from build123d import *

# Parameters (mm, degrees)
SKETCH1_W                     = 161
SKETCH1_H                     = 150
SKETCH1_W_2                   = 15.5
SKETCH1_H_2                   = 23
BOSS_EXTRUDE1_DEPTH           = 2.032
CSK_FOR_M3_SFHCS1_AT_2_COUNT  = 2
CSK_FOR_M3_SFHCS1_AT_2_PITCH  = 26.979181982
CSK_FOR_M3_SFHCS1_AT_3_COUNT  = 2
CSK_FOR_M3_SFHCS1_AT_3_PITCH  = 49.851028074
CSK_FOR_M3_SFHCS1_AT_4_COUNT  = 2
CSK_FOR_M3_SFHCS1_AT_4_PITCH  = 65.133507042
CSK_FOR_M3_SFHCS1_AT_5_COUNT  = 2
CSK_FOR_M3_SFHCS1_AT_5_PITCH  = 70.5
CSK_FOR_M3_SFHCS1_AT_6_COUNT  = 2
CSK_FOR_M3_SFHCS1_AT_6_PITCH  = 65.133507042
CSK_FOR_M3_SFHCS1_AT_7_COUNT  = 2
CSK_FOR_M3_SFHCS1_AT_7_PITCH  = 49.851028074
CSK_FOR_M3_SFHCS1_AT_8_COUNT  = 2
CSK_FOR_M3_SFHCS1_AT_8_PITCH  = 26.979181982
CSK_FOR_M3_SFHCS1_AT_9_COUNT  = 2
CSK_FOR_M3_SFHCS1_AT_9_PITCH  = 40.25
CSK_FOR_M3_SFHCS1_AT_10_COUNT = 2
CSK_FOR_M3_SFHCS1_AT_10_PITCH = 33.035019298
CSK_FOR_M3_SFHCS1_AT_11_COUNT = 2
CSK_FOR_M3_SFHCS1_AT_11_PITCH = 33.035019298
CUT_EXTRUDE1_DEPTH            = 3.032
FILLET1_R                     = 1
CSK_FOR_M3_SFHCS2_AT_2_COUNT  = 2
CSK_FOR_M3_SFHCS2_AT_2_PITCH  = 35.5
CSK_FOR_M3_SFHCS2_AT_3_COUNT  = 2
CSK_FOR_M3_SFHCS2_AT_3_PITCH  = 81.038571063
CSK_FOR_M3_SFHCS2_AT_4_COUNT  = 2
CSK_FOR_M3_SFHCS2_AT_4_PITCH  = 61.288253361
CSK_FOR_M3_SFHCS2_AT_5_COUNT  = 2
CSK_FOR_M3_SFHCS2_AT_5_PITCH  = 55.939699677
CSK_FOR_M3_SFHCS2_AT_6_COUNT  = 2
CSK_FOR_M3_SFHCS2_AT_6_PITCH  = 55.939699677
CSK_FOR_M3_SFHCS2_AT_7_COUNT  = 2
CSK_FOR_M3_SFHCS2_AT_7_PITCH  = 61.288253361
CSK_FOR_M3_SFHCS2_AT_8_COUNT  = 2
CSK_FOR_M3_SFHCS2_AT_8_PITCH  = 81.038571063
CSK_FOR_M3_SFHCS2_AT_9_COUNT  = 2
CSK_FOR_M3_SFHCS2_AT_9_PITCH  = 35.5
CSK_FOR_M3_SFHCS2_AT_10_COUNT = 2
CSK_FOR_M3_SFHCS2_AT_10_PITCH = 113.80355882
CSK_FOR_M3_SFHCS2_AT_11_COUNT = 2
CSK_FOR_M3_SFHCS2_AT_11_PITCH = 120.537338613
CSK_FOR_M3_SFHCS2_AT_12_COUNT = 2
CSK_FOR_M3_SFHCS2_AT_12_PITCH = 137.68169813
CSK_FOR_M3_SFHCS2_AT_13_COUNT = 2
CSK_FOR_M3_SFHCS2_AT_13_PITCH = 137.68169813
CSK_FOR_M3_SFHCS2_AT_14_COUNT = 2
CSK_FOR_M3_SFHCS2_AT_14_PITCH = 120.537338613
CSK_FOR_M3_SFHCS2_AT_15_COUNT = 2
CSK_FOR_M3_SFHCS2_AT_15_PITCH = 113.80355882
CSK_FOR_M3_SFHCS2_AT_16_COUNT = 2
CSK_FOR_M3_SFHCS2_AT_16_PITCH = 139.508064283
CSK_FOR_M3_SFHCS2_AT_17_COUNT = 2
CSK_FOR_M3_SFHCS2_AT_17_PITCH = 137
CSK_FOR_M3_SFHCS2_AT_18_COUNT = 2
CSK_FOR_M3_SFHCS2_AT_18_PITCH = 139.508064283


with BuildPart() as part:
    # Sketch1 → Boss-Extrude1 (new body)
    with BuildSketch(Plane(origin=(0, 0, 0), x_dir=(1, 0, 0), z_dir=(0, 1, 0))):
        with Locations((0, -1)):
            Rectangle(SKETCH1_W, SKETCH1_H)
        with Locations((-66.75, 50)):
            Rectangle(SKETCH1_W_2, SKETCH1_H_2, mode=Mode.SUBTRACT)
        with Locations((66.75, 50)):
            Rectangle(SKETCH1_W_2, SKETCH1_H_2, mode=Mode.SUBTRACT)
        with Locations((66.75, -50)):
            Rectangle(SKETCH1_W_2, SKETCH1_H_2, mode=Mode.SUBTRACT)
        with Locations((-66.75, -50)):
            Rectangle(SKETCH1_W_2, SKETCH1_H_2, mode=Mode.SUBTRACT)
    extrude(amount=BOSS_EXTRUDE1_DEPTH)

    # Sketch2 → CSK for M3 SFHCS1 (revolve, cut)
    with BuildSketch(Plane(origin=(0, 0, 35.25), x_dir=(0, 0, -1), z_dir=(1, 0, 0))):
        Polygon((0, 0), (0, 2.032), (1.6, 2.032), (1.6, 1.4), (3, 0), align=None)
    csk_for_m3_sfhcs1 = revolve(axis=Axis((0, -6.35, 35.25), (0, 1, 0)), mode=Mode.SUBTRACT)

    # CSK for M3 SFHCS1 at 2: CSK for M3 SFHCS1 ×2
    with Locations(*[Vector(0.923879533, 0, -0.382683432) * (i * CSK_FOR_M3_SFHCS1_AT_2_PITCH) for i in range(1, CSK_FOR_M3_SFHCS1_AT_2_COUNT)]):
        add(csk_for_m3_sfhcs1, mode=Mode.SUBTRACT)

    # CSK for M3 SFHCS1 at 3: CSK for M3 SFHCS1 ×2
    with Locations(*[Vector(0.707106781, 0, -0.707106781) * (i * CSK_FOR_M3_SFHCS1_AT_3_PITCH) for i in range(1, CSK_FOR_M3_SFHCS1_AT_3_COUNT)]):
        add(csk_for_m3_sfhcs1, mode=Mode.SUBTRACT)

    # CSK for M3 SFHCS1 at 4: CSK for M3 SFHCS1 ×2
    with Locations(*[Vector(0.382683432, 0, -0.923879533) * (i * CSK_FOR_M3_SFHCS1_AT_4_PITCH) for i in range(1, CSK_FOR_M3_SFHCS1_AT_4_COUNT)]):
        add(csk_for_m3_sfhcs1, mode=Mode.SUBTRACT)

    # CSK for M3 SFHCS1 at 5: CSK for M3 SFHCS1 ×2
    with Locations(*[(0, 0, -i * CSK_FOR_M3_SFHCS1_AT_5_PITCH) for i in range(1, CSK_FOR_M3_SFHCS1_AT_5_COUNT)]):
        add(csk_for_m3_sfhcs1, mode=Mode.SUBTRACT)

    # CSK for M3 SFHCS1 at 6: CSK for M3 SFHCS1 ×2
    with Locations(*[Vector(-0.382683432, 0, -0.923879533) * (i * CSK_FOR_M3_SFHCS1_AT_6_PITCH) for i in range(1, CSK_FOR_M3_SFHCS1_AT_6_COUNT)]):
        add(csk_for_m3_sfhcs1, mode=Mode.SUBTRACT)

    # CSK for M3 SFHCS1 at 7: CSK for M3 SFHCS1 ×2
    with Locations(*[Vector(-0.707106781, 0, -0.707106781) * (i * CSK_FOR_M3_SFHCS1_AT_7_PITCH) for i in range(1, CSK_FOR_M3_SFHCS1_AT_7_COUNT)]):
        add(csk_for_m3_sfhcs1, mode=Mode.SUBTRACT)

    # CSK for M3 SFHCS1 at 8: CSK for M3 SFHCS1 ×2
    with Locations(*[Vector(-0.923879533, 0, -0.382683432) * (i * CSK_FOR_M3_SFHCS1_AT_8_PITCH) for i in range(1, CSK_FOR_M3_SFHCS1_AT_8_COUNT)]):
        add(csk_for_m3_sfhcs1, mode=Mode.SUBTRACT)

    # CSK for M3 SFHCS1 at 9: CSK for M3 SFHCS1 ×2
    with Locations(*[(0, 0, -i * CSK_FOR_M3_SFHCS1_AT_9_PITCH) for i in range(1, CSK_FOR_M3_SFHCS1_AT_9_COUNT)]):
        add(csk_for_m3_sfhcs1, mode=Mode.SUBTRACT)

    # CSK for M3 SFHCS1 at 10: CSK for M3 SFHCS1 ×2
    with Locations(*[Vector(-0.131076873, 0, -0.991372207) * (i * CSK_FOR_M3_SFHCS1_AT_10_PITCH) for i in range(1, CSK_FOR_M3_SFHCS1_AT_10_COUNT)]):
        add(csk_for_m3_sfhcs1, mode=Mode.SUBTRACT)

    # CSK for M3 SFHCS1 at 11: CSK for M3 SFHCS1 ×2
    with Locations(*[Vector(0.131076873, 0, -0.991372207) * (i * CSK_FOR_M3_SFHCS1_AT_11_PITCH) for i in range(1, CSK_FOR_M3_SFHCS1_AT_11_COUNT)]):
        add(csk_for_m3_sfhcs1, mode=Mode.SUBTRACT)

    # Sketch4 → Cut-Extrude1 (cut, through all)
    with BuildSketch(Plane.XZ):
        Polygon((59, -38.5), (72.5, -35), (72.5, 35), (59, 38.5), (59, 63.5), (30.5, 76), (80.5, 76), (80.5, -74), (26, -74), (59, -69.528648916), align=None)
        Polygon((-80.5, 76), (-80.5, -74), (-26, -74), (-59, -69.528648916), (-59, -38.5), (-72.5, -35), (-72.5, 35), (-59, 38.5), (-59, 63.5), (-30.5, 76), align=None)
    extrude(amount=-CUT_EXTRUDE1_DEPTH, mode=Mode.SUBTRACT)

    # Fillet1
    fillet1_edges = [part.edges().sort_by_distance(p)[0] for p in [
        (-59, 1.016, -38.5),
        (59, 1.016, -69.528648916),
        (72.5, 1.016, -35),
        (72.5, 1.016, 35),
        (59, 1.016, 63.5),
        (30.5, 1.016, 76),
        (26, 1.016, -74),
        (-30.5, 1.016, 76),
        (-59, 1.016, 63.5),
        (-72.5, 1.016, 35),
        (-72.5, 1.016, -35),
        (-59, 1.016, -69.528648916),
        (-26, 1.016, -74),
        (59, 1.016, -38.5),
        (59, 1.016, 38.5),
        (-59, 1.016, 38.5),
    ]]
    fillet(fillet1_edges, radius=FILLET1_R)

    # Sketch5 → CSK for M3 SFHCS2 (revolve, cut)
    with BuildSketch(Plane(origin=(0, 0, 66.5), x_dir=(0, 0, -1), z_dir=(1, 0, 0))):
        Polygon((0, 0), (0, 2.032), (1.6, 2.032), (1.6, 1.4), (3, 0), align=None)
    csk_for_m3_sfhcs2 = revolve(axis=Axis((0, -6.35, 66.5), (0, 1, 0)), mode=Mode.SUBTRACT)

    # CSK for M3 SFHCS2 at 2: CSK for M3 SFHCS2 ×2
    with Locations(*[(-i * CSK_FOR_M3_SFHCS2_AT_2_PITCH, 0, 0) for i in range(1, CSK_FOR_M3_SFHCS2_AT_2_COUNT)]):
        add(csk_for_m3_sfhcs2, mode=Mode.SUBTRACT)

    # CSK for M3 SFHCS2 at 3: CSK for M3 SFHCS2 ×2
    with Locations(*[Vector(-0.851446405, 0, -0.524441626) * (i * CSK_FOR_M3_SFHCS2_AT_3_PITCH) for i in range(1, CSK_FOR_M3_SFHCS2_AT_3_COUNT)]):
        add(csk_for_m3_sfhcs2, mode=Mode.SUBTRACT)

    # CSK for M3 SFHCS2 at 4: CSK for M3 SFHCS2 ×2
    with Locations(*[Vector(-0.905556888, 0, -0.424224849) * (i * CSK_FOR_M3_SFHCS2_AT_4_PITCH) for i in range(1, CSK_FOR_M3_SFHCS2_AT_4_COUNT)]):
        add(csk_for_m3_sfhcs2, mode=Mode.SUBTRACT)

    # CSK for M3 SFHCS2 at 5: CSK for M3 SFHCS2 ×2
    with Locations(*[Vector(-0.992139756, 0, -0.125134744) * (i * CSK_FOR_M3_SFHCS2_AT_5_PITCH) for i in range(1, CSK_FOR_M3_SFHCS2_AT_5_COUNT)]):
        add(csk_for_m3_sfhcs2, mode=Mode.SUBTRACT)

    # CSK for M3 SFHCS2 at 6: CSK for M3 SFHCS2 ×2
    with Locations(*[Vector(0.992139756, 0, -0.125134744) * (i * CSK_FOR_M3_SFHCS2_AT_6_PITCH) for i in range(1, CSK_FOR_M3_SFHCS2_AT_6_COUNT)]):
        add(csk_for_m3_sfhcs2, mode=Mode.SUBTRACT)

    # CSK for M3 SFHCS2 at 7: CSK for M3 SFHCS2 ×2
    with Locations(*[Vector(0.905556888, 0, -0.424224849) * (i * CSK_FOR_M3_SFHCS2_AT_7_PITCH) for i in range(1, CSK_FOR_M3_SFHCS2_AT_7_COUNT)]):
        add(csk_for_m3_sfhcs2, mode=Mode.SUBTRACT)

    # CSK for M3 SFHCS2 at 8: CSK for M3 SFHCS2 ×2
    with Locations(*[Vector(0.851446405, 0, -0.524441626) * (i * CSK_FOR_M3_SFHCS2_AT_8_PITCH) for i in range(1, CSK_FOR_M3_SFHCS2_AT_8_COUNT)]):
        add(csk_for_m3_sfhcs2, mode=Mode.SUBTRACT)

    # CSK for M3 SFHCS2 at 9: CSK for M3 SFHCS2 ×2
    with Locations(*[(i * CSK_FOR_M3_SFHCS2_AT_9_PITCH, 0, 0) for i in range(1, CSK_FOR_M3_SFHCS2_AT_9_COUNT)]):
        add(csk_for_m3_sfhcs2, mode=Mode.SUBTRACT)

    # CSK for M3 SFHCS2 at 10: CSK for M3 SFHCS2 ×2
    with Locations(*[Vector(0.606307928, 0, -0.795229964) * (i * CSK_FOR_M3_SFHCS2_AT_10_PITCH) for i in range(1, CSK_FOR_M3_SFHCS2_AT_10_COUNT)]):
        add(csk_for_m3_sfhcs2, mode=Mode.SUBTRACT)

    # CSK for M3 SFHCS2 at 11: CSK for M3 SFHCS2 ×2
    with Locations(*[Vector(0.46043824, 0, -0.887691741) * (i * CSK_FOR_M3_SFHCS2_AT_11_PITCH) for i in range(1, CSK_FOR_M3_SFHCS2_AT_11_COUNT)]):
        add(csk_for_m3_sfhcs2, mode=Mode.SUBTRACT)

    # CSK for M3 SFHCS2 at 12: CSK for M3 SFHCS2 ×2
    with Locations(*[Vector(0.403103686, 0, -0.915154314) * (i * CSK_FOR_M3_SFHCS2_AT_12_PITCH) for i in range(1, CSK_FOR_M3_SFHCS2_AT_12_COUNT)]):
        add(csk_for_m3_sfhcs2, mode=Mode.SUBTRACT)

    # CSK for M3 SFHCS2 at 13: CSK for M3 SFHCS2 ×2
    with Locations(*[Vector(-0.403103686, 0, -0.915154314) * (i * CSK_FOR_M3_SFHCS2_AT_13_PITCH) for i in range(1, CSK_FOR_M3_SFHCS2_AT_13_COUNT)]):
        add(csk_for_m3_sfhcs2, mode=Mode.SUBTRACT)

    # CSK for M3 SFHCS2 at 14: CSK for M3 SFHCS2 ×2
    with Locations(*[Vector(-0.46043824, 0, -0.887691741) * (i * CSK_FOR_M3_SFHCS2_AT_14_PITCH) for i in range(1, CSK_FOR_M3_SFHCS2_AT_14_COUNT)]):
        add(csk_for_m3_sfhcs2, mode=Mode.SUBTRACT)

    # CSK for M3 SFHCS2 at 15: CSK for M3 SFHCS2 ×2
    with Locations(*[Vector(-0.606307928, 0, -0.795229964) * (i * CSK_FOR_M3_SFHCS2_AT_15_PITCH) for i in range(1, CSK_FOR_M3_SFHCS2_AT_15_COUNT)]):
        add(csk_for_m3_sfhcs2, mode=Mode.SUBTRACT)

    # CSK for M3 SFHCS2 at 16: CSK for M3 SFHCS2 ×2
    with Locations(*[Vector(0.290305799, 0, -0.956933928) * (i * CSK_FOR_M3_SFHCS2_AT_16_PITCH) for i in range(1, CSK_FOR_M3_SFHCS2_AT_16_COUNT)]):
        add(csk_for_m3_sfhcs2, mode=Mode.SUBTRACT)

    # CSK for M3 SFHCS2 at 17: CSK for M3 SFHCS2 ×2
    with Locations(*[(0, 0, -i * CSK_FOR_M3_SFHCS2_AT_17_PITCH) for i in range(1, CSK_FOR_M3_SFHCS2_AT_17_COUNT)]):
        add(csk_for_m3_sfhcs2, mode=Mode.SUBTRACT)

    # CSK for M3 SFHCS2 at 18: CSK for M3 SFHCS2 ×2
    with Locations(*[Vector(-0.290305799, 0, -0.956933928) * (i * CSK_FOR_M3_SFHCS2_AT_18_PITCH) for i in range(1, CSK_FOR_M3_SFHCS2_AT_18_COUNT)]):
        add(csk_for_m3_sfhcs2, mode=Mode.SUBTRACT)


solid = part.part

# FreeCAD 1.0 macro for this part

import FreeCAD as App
import Part
import Sketcher
from FreeCAD import Vector
Q = App.Units.Quantity


def edges_at(feature, points):
    """Names of the edges that pass closest to the given points."""
    edges = feature.Shape.Edges
    near = lambda p: min(range(len(edges)), key=lambda i: edges[i].distToShape(Part.Vertex(*p))[0])
    return sorted({f"Edge{near(p) + 1}" for p in points})

doc = App.newDocument("Part")
body = doc.addObject("PartDesign::Body", "Body")

# Sketch on XZ plane
sketch1 = body.newObject("Sketcher::SketchObject", "Sketch")
sketch1.AttachmentSupport = (doc.getObject("XZ_Plane"), [""])
sketch1.MapMode = "FlatFace"
sketch1.addGeometry([
    Part.LineSegment(Vector(-80, -74, 0), Vector(-80, 76, 0)),  # 0
    Part.LineSegment(Vector(-80, 76, 0), Vector(80, 76, 0)),  # 1
    Part.LineSegment(Vector(80, 76, 0), Vector(80, -74, 0)),  # 2
    Part.LineSegment(Vector(80, -74, 0), Vector(-80, -74, 0)),  # 3
    Part.LineSegment(Vector(-59, 62, 0), Vector(-74, 62, 0)),  # 4
    Part.LineSegment(Vector(-74, 62, 0), Vector(-74, 38, 0)),  # 5
    Part.LineSegment(Vector(-74, 38, 0), Vector(-59, 38, 0)),  # 6
    Part.LineSegment(Vector(-59, 38, 0), Vector(-59, 62, 0)),  # 7
    Part.LineSegment(Vector(74, 62, 0), Vector(59, 62, 0)),  # 8
    Part.LineSegment(Vector(59, 62, 0), Vector(59, 38, 0)),  # 9
    Part.LineSegment(Vector(59, 38, 0), Vector(74, 38, 0)),  # 10
    Part.LineSegment(Vector(74, 38, 0), Vector(74, 62, 0)),  # 11
    Part.LineSegment(Vector(-59, -38, 0), Vector(-74, -38, 0)),  # 12
    Part.LineSegment(Vector(-74, -38, 0), Vector(-74, -62, 0)),  # 13
    Part.LineSegment(Vector(-74, -62, 0), Vector(-59, -62, 0)),  # 14
    Part.LineSegment(Vector(-59, -62, 0), Vector(-59, -38, 0)),  # 15
    Part.LineSegment(Vector(74, -38, 0), Vector(59, -38, 0)),  # 16
    Part.LineSegment(Vector(59, -38, 0), Vector(59, -62, 0)),  # 17
    Part.LineSegment(Vector(59, -62, 0), Vector(74, -62, 0)),  # 18
    Part.LineSegment(Vector(74, -62, 0), Vector(74, -38, 0)),  # 19
], False)
sketch1.addConstraint([
    Sketcher.Constraint("Coincident", 0, 2, 1, 1),
    Sketcher.Constraint("Coincident", 1, 2, 2, 1),
    Sketcher.Constraint("Coincident", 2, 2, 3, 1),
    Sketcher.Constraint("Coincident", 3, 2, 0, 1),
    Sketcher.Constraint("Coincident", 4, 2, 5, 1),
    Sketcher.Constraint("Coincident", 5, 2, 6, 1),
    Sketcher.Constraint("Coincident", 6, 2, 7, 1),
    Sketcher.Constraint("Coincident", 7, 2, 4, 1),
    Sketcher.Constraint("Coincident", 8, 2, 9, 1),
    Sketcher.Constraint("Coincident", 9, 2, 10, 1),
    Sketcher.Constraint("Coincident", 10, 2, 11, 1),
    Sketcher.Constraint("Coincident", 11, 2, 8, 1),
    Sketcher.Constraint("Coincident", 12, 2, 13, 1),
    Sketcher.Constraint("Coincident", 13, 2, 14, 1),
    Sketcher.Constraint("Coincident", 14, 2, 15, 1),
    Sketcher.Constraint("Coincident", 15, 2, 12, 1),
    Sketcher.Constraint("Coincident", 16, 2, 17, 1),
    Sketcher.Constraint("Coincident", 17, 2, 18, 1),
    Sketcher.Constraint("Coincident", 18, 2, 19, 1),
    Sketcher.Constraint("Coincident", 19, 2, 16, 1),
    Sketcher.Constraint("Vertical", 0),
    Sketcher.Constraint("Horizontal", 1),
    Sketcher.Constraint("Vertical", 2),
    Sketcher.Constraint("Horizontal", 3),
    Sketcher.Constraint("Horizontal", 4),
    Sketcher.Constraint("Vertical", 5),
    Sketcher.Constraint("Horizontal", 6),
    Sketcher.Constraint("Vertical", 7),
    Sketcher.Constraint("Horizontal", 8),
    Sketcher.Constraint("Vertical", 9),
    Sketcher.Constraint("Horizontal", 10),
    Sketcher.Constraint("Vertical", 11),
    Sketcher.Constraint("Horizontal", 12),
    Sketcher.Constraint("Vertical", 13),
    Sketcher.Constraint("Horizontal", 14),
    Sketcher.Constraint("Vertical", 15),
    Sketcher.Constraint("Horizontal", 16),
    Sketcher.Constraint("Vertical", 17),
    Sketcher.Constraint("Horizontal", 18),
    Sketcher.Constraint("Vertical", 19),
    Sketcher.Constraint("Symmetric", 10, 2, 12, 2, -1, 1),
    Sketcher.Constraint("Symmetric", 8, 2, 14, 2, -1, 1),
    Sketcher.Constraint("Symmetric", 6, 2, 16, 2, -1, 1),
    Sketcher.Constraint("Symmetric", 4, 2, 18, 2, -1, 1),
    Sketcher.Constraint("Symmetric", 7, 2, 8, 2, -2),
    Sketcher.Constraint("Symmetric", 5, 2, 10, 2, -2),
    Sketcher.Constraint("DistanceX", 1, 1, 1, 2, Q("161 mm")),
    Sketcher.Constraint("DistanceY", 0, 1, 0, 2, Q("150 mm")),
    Sketcher.Constraint("DistanceY", 5, 2, 5, 1, Q("23 mm")),
    Sketcher.Constraint("DistanceX", 4, 2, 4, 1, Q("15.5 mm")),
    Sketcher.Constraint("DistanceY", -1, 1, 0, 2, Q("76 mm")),
    Sketcher.Constraint("DistanceX", 6, 2, -1, 1, Q("59 mm")),
    Sketcher.Constraint("DistanceX", 0, 2, 4, 2, Q("6 mm")),
    Sketcher.Constraint("DistanceY", 12, 2, 5, 2, Q("77 mm")),
])
pad1 = body.newObject("PartDesign::Pad", "Pad")
pad1.Profile = sketch1
pad1.Length = 2.032
pad1.Reversed = True

# Sketch on YZ plane
sketch2 = body.newObject("Sketcher::SketchObject", "Sketch001")
sketch2.AttachmentSupport = (doc.getObject("YZ_Plane"), [""])
sketch2.MapMode = "FlatFace"
sketch2.addGeometry([
    Part.LineSegment(Vector(2, 35.2, 0), Vector(0, 35.2, 0)),  # 0
    Part.LineSegment(Vector(0, 35.2, 0), Vector(0, 32.2, 0)),  # 1
    Part.LineSegment(Vector(0, 32.2, 0), Vector(1.4, 33.6, 0)),  # 2
    Part.LineSegment(Vector(1.4, 33.6, 0), Vector(2, 33.6, 0)),  # 3
    Part.LineSegment(Vector(2, 33.6, 0), Vector(2, 35.2, 0)),  # 4
], False)
sketch2.addGeometry(Part.LineSegment(Vector(0, 35.2, 0), Vector(2, 35.2, 0)), True)  # axis
sketch2.addConstraint([
    Sketcher.Constraint("Coincident", 0, 2, 1, 1),
    Sketcher.Constraint("Coincident", 1, 2, 2, 1),
    Sketcher.Constraint("Coincident", 2, 2, 3, 1),
    Sketcher.Constraint("Coincident", 3, 2, 4, 1),
    Sketcher.Constraint("Coincident", 4, 2, 0, 1),
    Sketcher.Constraint("Horizontal", 0),
    Sketcher.Constraint("Vertical", 1),
    Sketcher.Constraint("Horizontal", 3),
    Sketcher.Constraint("Vertical", 4),
    Sketcher.Constraint("Horizontal", 5),
    Sketcher.Constraint("Coincident", 5, 1, 0, 2),
    Sketcher.Constraint("PointOnObject", 0, 2, -2),
    Sketcher.Constraint("Vertical", 3, 2, 5, 2),
    Sketcher.Constraint("DistanceY", 1, 2, 1, 1, Q("3 mm")),
    Sketcher.Constraint("Angle", 2, Q("45 deg")),
    Sketcher.Constraint("DistanceY", 4, 1, 4, 2, Q("1.6 mm")),
    Sketcher.Constraint("DistanceX", 0, 2, 0, 1, Q("2.032 mm")),
    Sketcher.Constraint("DistanceY", -1, 1, 0, 2, Q("35.25 mm")),
])
groove = body.newObject("PartDesign::Groove", "Groove")
groove.Profile = sketch2
groove.ReferenceAxis = (sketch2, ["Axis0"])
groove.Angle = 360
doc.recompute()

datumline = body.newObject("PartDesign::Line", "DatumLine")
datumline.Placement = App.Placement(Vector(0, 0, 0), App.Rotation(Vector(0, 0, 1), Vector(0.923879533, 0, -0.382683432)))
linearpattern = body.newObject("PartDesign::LinearPattern", "LinearPattern")
linearpattern.Originals = [groove]
linearpattern.Direction = (datumline, [""])
linearpattern.Mode = "offset"
linearpattern.Offset = 26.979182
linearpattern.Occurrences = 2
body.Tip = linearpattern
doc.recompute()

datumline2 = body.newObject("PartDesign::Line", "DatumLine001")
datumline2.Placement = App.Placement(Vector(0, 0, 0), App.Rotation(Vector(0, 0, 1), Vector(0.707106781, 0, -0.707106781)))
linearpattern2 = body.newObject("PartDesign::LinearPattern", "LinearPattern001")
linearpattern2.Originals = [groove]
linearpattern2.Direction = (datumline2, [""])
linearpattern2.Mode = "offset"
linearpattern2.Offset = 49.851028
linearpattern2.Occurrences = 2
body.Tip = linearpattern2
doc.recompute()

datumline3 = body.newObject("PartDesign::Line", "DatumLine002")
datumline3.Placement = App.Placement(Vector(0, 0, 0), App.Rotation(Vector(0, 0, 1), Vector(0.382683432, 0, -0.923879533)))
linearpattern3 = body.newObject("PartDesign::LinearPattern", "LinearPattern002")
linearpattern3.Originals = [groove]
linearpattern3.Direction = (datumline3, [""])
linearpattern3.Mode = "offset"
linearpattern3.Offset = 65.133507
linearpattern3.Occurrences = 2
body.Tip = linearpattern3
doc.recompute()

linearpattern4 = body.newObject("PartDesign::LinearPattern", "LinearPattern003")
linearpattern4.Originals = [groove]
linearpattern4.Direction = (doc.getObject("Z_Axis"), [""])
linearpattern4.Mode = "offset"
linearpattern4.Offset = 70.5
linearpattern4.Occurrences = 2
linearpattern4.Reversed = True
body.Tip = linearpattern4
doc.recompute()

datumline4 = body.newObject("PartDesign::Line", "DatumLine003")
datumline4.Placement = App.Placement(Vector(0, 0, 0), App.Rotation(Vector(0, 0, 1), Vector(-0.382683432, 0, -0.923879533)))
linearpattern5 = body.newObject("PartDesign::LinearPattern", "LinearPattern004")
linearpattern5.Originals = [groove]
linearpattern5.Direction = (datumline4, [""])
linearpattern5.Mode = "offset"
linearpattern5.Offset = 65.133507
linearpattern5.Occurrences = 2
body.Tip = linearpattern5
doc.recompute()

datumline5 = body.newObject("PartDesign::Line", "DatumLine004")
datumline5.Placement = App.Placement(Vector(0, 0, 0), App.Rotation(Vector(0, 0, 1), Vector(-0.707106781, 0, -0.707106781)))
linearpattern6 = body.newObject("PartDesign::LinearPattern", "LinearPattern005")
linearpattern6.Originals = [groove]
linearpattern6.Direction = (datumline5, [""])
linearpattern6.Mode = "offset"
linearpattern6.Offset = 49.851028
linearpattern6.Occurrences = 2
body.Tip = linearpattern6
doc.recompute()

datumline6 = body.newObject("PartDesign::Line", "DatumLine005")
datumline6.Placement = App.Placement(Vector(0, 0, 0), App.Rotation(Vector(0, 0, 1), Vector(-0.923879533, 0, -0.382683432)))
linearpattern7 = body.newObject("PartDesign::LinearPattern", "LinearPattern006")
linearpattern7.Originals = [groove]
linearpattern7.Direction = (datumline6, [""])
linearpattern7.Mode = "offset"
linearpattern7.Offset = 26.979182
linearpattern7.Occurrences = 2
body.Tip = linearpattern7
doc.recompute()

linearpattern8 = body.newObject("PartDesign::LinearPattern", "LinearPattern007")
linearpattern8.Originals = [groove]
linearpattern8.Direction = (doc.getObject("Z_Axis"), [""])
linearpattern8.Mode = "offset"
linearpattern8.Offset = 40.25
linearpattern8.Occurrences = 2
linearpattern8.Reversed = True
body.Tip = linearpattern8
doc.recompute()

datumline7 = body.newObject("PartDesign::Line", "DatumLine006")
datumline7.Placement = App.Placement(Vector(0, 0, 0), App.Rotation(Vector(0, 0, 1), Vector(-0.131076873, 0, -0.991372207)))
linearpattern9 = body.newObject("PartDesign::LinearPattern", "LinearPattern008")
linearpattern9.Originals = [groove]
linearpattern9.Direction = (datumline7, [""])
linearpattern9.Mode = "offset"
linearpattern9.Offset = 33.035019
linearpattern9.Occurrences = 2
body.Tip = linearpattern9
doc.recompute()

datumline8 = body.newObject("PartDesign::Line", "DatumLine007")
datumline8.Placement = App.Placement(Vector(0, 0, 0), App.Rotation(Vector(0, 0, 1), Vector(0.131076873, 0, -0.991372207)))
linearpattern10 = body.newObject("PartDesign::LinearPattern", "LinearPattern009")
linearpattern10.Originals = [groove]
linearpattern10.Direction = (datumline8, [""])
linearpattern10.Mode = "offset"
linearpattern10.Offset = 33.035019
linearpattern10.Occurrences = 2
body.Tip = linearpattern10

# Sketch on XZ plane
sketch3 = body.newObject("Sketcher::SketchObject", "Sketch002")
sketch3.AttachmentSupport = (doc.getObject("XZ_Plane"), [""])
sketch3.MapMode = "FlatFace"
sketch3.addGeometry([
    Part.LineSegment(Vector(72, -35, 0), Vector(59, -38, 0)),  # 0
    Part.LineSegment(Vector(59, -38, 0), Vector(59, -70, 0)),  # 1
    Part.LineSegment(Vector(59, -70, 0), Vector(26, -74, 0)),  # 2
    Part.LineSegment(Vector(26, -74, 0), Vector(80, -74, 0)),  # 3
    Part.LineSegment(Vector(80, -74, 0), Vector(80, 76, 0)),  # 4
    Part.LineSegment(Vector(80, 76, 0), Vector(30, 76, 0)),  # 5
    Part.LineSegment(Vector(30, 76, 0), Vector(59, 64, 0)),  # 6
    Part.LineSegment(Vector(59, 64, 0), Vector(59, 38, 0)),  # 7
    Part.LineSegment(Vector(59, 38, 0), Vector(72, 35, 0)),  # 8
    Part.LineSegment(Vector(72, 35, 0), Vector(72, -35, 0)),  # 9
    Part.LineSegment(Vector(-80, 76, 0), Vector(-80, -74, 0)),  # 10
    Part.LineSegment(Vector(-80, -74, 0), Vector(-26, -74, 0)),  # 11
    Part.LineSegment(Vector(-26, -74, 0), Vector(-59, -70, 0)),  # 12
    Part.LineSegment(Vector(-59, -70, 0), Vector(-59, -38, 0)),  # 13
    Part.LineSegment(Vector(-59, -38, 0), Vector(-72, -35, 0)),  # 14
    Part.LineSegment(Vector(-72, -35, 0), Vector(-72, 35, 0)),  # 15
    Part.LineSegment(Vector(-72, 35, 0), Vector(-59, 38, 0)),  # 16
    Part.LineSegment(Vector(-59, 38, 0), Vector(-59, 64, 0)),  # 17
    Part.LineSegment(Vector(-59, 64, 0), Vector(-30, 76, 0)),  # 18
    Part.LineSegment(Vector(-30, 76, 0), Vector(-80, 76, 0)),  # 19
], False)
sketch3.addConstraint([
    Sketcher.Constraint("Coincident", 0, 2, 1, 1),
    Sketcher.Constraint("Coincident", 1, 2, 2, 1),
    Sketcher.Constraint("Coincident", 2, 2, 3, 1),
    Sketcher.Constraint("Coincident", 3, 2, 4, 1),
    Sketcher.Constraint("Coincident", 4, 2, 5, 1),
    Sketcher.Constraint("Coincident", 5, 2, 6, 1),
    Sketcher.Constraint("Coincident", 6, 2, 7, 1),
    Sketcher.Constraint("Coincident", 7, 2, 8, 1),
    Sketcher.Constraint("Coincident", 8, 2, 9, 1),
    Sketcher.Constraint("Coincident", 9, 2, 0, 1),
    Sketcher.Constraint("Coincident", 10, 2, 11, 1),
    Sketcher.Constraint("Coincident", 11, 2, 12, 1),
    Sketcher.Constraint("Coincident", 12, 2, 13, 1),
    Sketcher.Constraint("Coincident", 13, 2, 14, 1),
    Sketcher.Constraint("Coincident", 14, 2, 15, 1),
    Sketcher.Constraint("Coincident", 15, 2, 16, 1),
    Sketcher.Constraint("Coincident", 16, 2, 17, 1),
    Sketcher.Constraint("Coincident", 17, 2, 18, 1),
    Sketcher.Constraint("Coincident", 18, 2, 19, 1),
    Sketcher.Constraint("Coincident", 19, 2, 10, 1),
    Sketcher.Constraint("Vertical", 1),
    Sketcher.Constraint("Horizontal", 3),
    Sketcher.Constraint("Vertical", 4),
    Sketcher.Constraint("Horizontal", 5),
    Sketcher.Constraint("Vertical", 7),
    Sketcher.Constraint("Vertical", 9),
    Sketcher.Constraint("Vertical", 10),
    Sketcher.Constraint("Horizontal", 11),
    Sketcher.Constraint("Vertical", 13),
    Sketcher.Constraint("Vertical", 15),
    Sketcher.Constraint("Vertical", 17),
    Sketcher.Constraint("Horizontal", 19),
    Sketcher.Constraint("Symmetric", 7, 2, 13, 2, -1, 1),
    Sketcher.Constraint("Symmetric", 8, 2, 14, 2, -1, 1),
    Sketcher.Constraint("Symmetric", 0, 2, 16, 2, -1, 1),
    Sketcher.Constraint("Symmetric", 3, 2, 10, 2, -2),
    Sketcher.Constraint("Symmetric", 1, 2, 12, 2, -2),
    Sketcher.Constraint("Symmetric", 5, 2, 18, 2, -2),
    Sketcher.Constraint("Parallel", 0, 16),
    Sketcher.Constraint("Horizontal", 0, 2, 13, 2),
    Sketcher.Constraint("Horizontal", 9, 2, 14, 2),
    Sketcher.Constraint("Horizontal", 6, 2, 17, 2),
    Sketcher.Constraint("Equal", 3, 11),
    Sketcher.Constraint("DistanceX", 5, 2, 5, 1, Q("50 mm")),
    Sketcher.Constraint("DistanceY", 4, 1, 4, 2, Q("150 mm")),
    Sketcher.Constraint("DistanceY", 7, 2, 7, 1, Q("25 mm")),
    Sketcher.Constraint("DistanceY", 9, 2, 9, 1, Q("70 mm")),
    Sketcher.Constraint("DistanceX", 3, 1, 3, 2, Q("54.5 mm")),
    Sketcher.Constraint("DistanceX", -1, 1, 0, 2, Q("59 mm")),
    Sketcher.Constraint("DistanceX", -1, 1, 2, 2, Q("26 mm")),
    Sketcher.Constraint("DistanceY", 2, 2, -1, 1, Q("74 mm")),
    Sketcher.Constraint("DistanceY", 0, 2, 6, 2, Q("102 mm")),
    Sketcher.Constraint("DistanceX", 8, 2, 4, 2, Q("8 mm")),
    Sketcher.Constraint("DistanceY", 1, 2, 1, 1, Q("31.028649 mm")),
])
pocket1 = body.newObject("PartDesign::Pocket", "Pocket")
pocket1.Profile = sketch3
pocket1.Type = "ThroughAll"
doc.recompute()

fillet = body.newObject("PartDesign::Fillet", "Fillet")
fillet.Base = (pocket1, edges_at(pocket1, [
    (-59, 1.016, -38.5),
    (59, 1.016, -69.529),
    (72.5, 1.016, -35),
    (72.5, 1.016, 35),
    (59, 1.016, 63.5),
    (30.5, 1.016, 76),
    (26, 1.016, -74),
    (-30.5, 1.016, 76),
    (-59, 1.016, 63.5),
    (-72.5, 1.016, 35),
    (-72.5, 1.016, -35),
    (-59, 1.016, -69.529),
    (-26, 1.016, -74),
    (59, 1.016, -38.5),
    (59, 1.016, 38.5),
    (-59, 1.016, 38.5),
]))
fillet.Radius = 1

# Sketch on YZ plane
sketch4 = body.newObject("Sketcher::SketchObject", "Sketch003")
sketch4.AttachmentSupport = (doc.getObject("YZ_Plane"), [""])
sketch4.MapMode = "FlatFace"
sketch4.addGeometry([
    Part.LineSegment(Vector(2, 66.5, 0), Vector(0, 66.5, 0)),  # 0
    Part.LineSegment(Vector(0, 66.5, 0), Vector(0, 63.5, 0)),  # 1
    Part.LineSegment(Vector(0, 63.5, 0), Vector(1.4, 64.9, 0)),  # 2
    Part.LineSegment(Vector(1.4, 64.9, 0), Vector(2, 64.9, 0)),  # 3
    Part.LineSegment(Vector(2, 64.9, 0), Vector(2, 66.5, 0)),  # 4
], False)
sketch4.addGeometry(Part.LineSegment(Vector(0, 66.5, 0), Vector(2, 66.5, 0)), True)  # axis
sketch4.addConstraint([
    Sketcher.Constraint("Coincident", 0, 2, 1, 1),
    Sketcher.Constraint("Coincident", 1, 2, 2, 1),
    Sketcher.Constraint("Coincident", 2, 2, 3, 1),
    Sketcher.Constraint("Coincident", 3, 2, 4, 1),
    Sketcher.Constraint("Coincident", 4, 2, 0, 1),
    Sketcher.Constraint("Horizontal", 0),
    Sketcher.Constraint("Vertical", 1),
    Sketcher.Constraint("Horizontal", 3),
    Sketcher.Constraint("Vertical", 4),
    Sketcher.Constraint("Horizontal", 5),
    Sketcher.Constraint("Coincident", 5, 1, 0, 2),
    Sketcher.Constraint("PointOnObject", 0, 2, -2),
    Sketcher.Constraint("Vertical", 3, 2, 5, 2),
    Sketcher.Constraint("DistanceY", 1, 2, 1, 1, Q("3 mm")),
    Sketcher.Constraint("Angle", 2, Q("45 deg")),
    Sketcher.Constraint("DistanceY", 4, 1, 4, 2, Q("1.6 mm")),
    Sketcher.Constraint("DistanceY", -1, 1, 0, 2, Q("66.5 mm")),
    Sketcher.Constraint("DistanceX", 0, 2, 0, 1, Q("2.032 mm")),
])
groove2 = body.newObject("PartDesign::Groove", "Groove001")
groove2.Profile = sketch4
groove2.ReferenceAxis = (sketch4, ["Axis0"])
groove2.Angle = 360
doc.recompute()

linearpattern11 = body.newObject("PartDesign::LinearPattern", "LinearPattern010")
linearpattern11.Originals = [groove2]
linearpattern11.Direction = (doc.getObject("X_Axis"), [""])
linearpattern11.Mode = "offset"
linearpattern11.Offset = 35.5
linearpattern11.Occurrences = 2
linearpattern11.Reversed = True
body.Tip = linearpattern11
doc.recompute()

datumline9 = body.newObject("PartDesign::Line", "DatumLine008")
datumline9.Placement = App.Placement(Vector(0, 0, 0), App.Rotation(Vector(0, 0, 1), Vector(-0.851446405, 0, -0.524441626)))
linearpattern12 = body.newObject("PartDesign::LinearPattern", "LinearPattern011")
linearpattern12.Originals = [groove2]
linearpattern12.Direction = (datumline9, [""])
linearpattern12.Mode = "offset"
linearpattern12.Offset = 81.038571
linearpattern12.Occurrences = 2
body.Tip = linearpattern12
doc.recompute()

datumline10 = body.newObject("PartDesign::Line", "DatumLine009")
datumline10.Placement = App.Placement(Vector(0, 0, 0), App.Rotation(Vector(0, 0, 1), Vector(-0.905556888, 0, -0.424224849)))
linearpattern13 = body.newObject("PartDesign::LinearPattern", "LinearPattern012")
linearpattern13.Originals = [groove2]
linearpattern13.Direction = (datumline10, [""])
linearpattern13.Mode = "offset"
linearpattern13.Offset = 61.288253
linearpattern13.Occurrences = 2
body.Tip = linearpattern13
doc.recompute()

datumline11 = body.newObject("PartDesign::Line", "DatumLine010")
datumline11.Placement = App.Placement(Vector(0, 0, 0), App.Rotation(Vector(0, 0, 1), Vector(-0.992139756, 0, -0.125134744)))
linearpattern14 = body.newObject("PartDesign::LinearPattern", "LinearPattern013")
linearpattern14.Originals = [groove2]
linearpattern14.Direction = (datumline11, [""])
linearpattern14.Mode = "offset"
linearpattern14.Offset = 55.9397
linearpattern14.Occurrences = 2
body.Tip = linearpattern14
doc.recompute()

datumline12 = body.newObject("PartDesign::Line", "DatumLine011")
datumline12.Placement = App.Placement(Vector(0, 0, 0), App.Rotation(Vector(0, 0, 1), Vector(0.992139756, 0, -0.125134744)))
linearpattern15 = body.newObject("PartDesign::LinearPattern", "LinearPattern014")
linearpattern15.Originals = [groove2]
linearpattern15.Direction = (datumline12, [""])
linearpattern15.Mode = "offset"
linearpattern15.Offset = 55.9397
linearpattern15.Occurrences = 2
body.Tip = linearpattern15
doc.recompute()

datumline13 = body.newObject("PartDesign::Line", "DatumLine012")
datumline13.Placement = App.Placement(Vector(0, 0, 0), App.Rotation(Vector(0, 0, 1), Vector(0.905556888, 0, -0.424224849)))
linearpattern16 = body.newObject("PartDesign::LinearPattern", "LinearPattern015")
linearpattern16.Originals = [groove2]
linearpattern16.Direction = (datumline13, [""])
linearpattern16.Mode = "offset"
linearpattern16.Offset = 61.288253
linearpattern16.Occurrences = 2
body.Tip = linearpattern16
doc.recompute()

datumline14 = body.newObject("PartDesign::Line", "DatumLine013")
datumline14.Placement = App.Placement(Vector(0, 0, 0), App.Rotation(Vector(0, 0, 1), Vector(0.851446405, 0, -0.524441626)))
linearpattern17 = body.newObject("PartDesign::LinearPattern", "LinearPattern016")
linearpattern17.Originals = [groove2]
linearpattern17.Direction = (datumline14, [""])
linearpattern17.Mode = "offset"
linearpattern17.Offset = 81.038571
linearpattern17.Occurrences = 2
body.Tip = linearpattern17
doc.recompute()

linearpattern18 = body.newObject("PartDesign::LinearPattern", "LinearPattern017")
linearpattern18.Originals = [groove2]
linearpattern18.Direction = (doc.getObject("X_Axis"), [""])
linearpattern18.Mode = "offset"
linearpattern18.Offset = 35.5
linearpattern18.Occurrences = 2
body.Tip = linearpattern18
doc.recompute()

datumline15 = body.newObject("PartDesign::Line", "DatumLine014")
datumline15.Placement = App.Placement(Vector(0, 0, 0), App.Rotation(Vector(0, 0, 1), Vector(0.606307928, 0, -0.795229964)))
linearpattern19 = body.newObject("PartDesign::LinearPattern", "LinearPattern018")
linearpattern19.Originals = [groove2]
linearpattern19.Direction = (datumline15, [""])
linearpattern19.Mode = "offset"
linearpattern19.Offset = 113.803559
linearpattern19.Occurrences = 2
body.Tip = linearpattern19
doc.recompute()

datumline16 = body.newObject("PartDesign::Line", "DatumLine015")
datumline16.Placement = App.Placement(Vector(0, 0, 0), App.Rotation(Vector(0, 0, 1), Vector(0.46043824, 0, -0.887691741)))
linearpattern20 = body.newObject("PartDesign::LinearPattern", "LinearPattern019")
linearpattern20.Originals = [groove2]
linearpattern20.Direction = (datumline16, [""])
linearpattern20.Mode = "offset"
linearpattern20.Offset = 120.537339
linearpattern20.Occurrences = 2
body.Tip = linearpattern20
doc.recompute()

datumline17 = body.newObject("PartDesign::Line", "DatumLine016")
datumline17.Placement = App.Placement(Vector(0, 0, 0), App.Rotation(Vector(0, 0, 1), Vector(0.403103686, 0, -0.915154314)))
linearpattern21 = body.newObject("PartDesign::LinearPattern", "LinearPattern020")
linearpattern21.Originals = [groove2]
linearpattern21.Direction = (datumline17, [""])
linearpattern21.Mode = "offset"
linearpattern21.Offset = 137.681698
linearpattern21.Occurrences = 2
body.Tip = linearpattern21
doc.recompute()

datumline18 = body.newObject("PartDesign::Line", "DatumLine017")
datumline18.Placement = App.Placement(Vector(0, 0, 0), App.Rotation(Vector(0, 0, 1), Vector(-0.403103686, 0, -0.915154314)))
linearpattern22 = body.newObject("PartDesign::LinearPattern", "LinearPattern021")
linearpattern22.Originals = [groove2]
linearpattern22.Direction = (datumline18, [""])
linearpattern22.Mode = "offset"
linearpattern22.Offset = 137.681698
linearpattern22.Occurrences = 2
body.Tip = linearpattern22
doc.recompute()

datumline19 = body.newObject("PartDesign::Line", "DatumLine018")
datumline19.Placement = App.Placement(Vector(0, 0, 0), App.Rotation(Vector(0, 0, 1), Vector(-0.46043824, 0, -0.887691741)))
linearpattern23 = body.newObject("PartDesign::LinearPattern", "LinearPattern022")
linearpattern23.Originals = [groove2]
linearpattern23.Direction = (datumline19, [""])
linearpattern23.Mode = "offset"
linearpattern23.Offset = 120.537339
linearpattern23.Occurrences = 2
body.Tip = linearpattern23
doc.recompute()

datumline20 = body.newObject("PartDesign::Line", "DatumLine019")
datumline20.Placement = App.Placement(Vector(0, 0, 0), App.Rotation(Vector(0, 0, 1), Vector(-0.606307928, 0, -0.795229964)))
linearpattern24 = body.newObject("PartDesign::LinearPattern", "LinearPattern023")
linearpattern24.Originals = [groove2]
linearpattern24.Direction = (datumline20, [""])
linearpattern24.Mode = "offset"
linearpattern24.Offset = 113.803559
linearpattern24.Occurrences = 2
body.Tip = linearpattern24
doc.recompute()

datumline21 = body.newObject("PartDesign::Line", "DatumLine020")
datumline21.Placement = App.Placement(Vector(0, 0, 0), App.Rotation(Vector(0, 0, 1), Vector(0.290305799, 0, -0.956933928)))
linearpattern25 = body.newObject("PartDesign::LinearPattern", "LinearPattern024")
linearpattern25.Originals = [groove2]
linearpattern25.Direction = (datumline21, [""])
linearpattern25.Mode = "offset"
linearpattern25.Offset = 139.508064
linearpattern25.Occurrences = 2
body.Tip = linearpattern25
doc.recompute()

linearpattern26 = body.newObject("PartDesign::LinearPattern", "LinearPattern025")
linearpattern26.Originals = [groove2]
linearpattern26.Direction = (doc.getObject("Z_Axis"), [""])
linearpattern26.Mode = "offset"
linearpattern26.Offset = 137
linearpattern26.Occurrences = 2
linearpattern26.Reversed = True
body.Tip = linearpattern26
doc.recompute()

datumline22 = body.newObject("PartDesign::Line", "DatumLine021")
datumline22.Placement = App.Placement(Vector(0, 0, 0), App.Rotation(Vector(0, 0, 1), Vector(-0.290305799, 0, -0.956933928)))
linearpattern27 = body.newObject("PartDesign::LinearPattern", "LinearPattern026")
linearpattern27.Originals = [groove2]
linearpattern27.Direction = (datumline22, [""])
linearpattern27.Mode = "offset"
linearpattern27.Offset = 139.508064
linearpattern27.Occurrences = 2
body.Tip = linearpattern27

doc.recompute()
